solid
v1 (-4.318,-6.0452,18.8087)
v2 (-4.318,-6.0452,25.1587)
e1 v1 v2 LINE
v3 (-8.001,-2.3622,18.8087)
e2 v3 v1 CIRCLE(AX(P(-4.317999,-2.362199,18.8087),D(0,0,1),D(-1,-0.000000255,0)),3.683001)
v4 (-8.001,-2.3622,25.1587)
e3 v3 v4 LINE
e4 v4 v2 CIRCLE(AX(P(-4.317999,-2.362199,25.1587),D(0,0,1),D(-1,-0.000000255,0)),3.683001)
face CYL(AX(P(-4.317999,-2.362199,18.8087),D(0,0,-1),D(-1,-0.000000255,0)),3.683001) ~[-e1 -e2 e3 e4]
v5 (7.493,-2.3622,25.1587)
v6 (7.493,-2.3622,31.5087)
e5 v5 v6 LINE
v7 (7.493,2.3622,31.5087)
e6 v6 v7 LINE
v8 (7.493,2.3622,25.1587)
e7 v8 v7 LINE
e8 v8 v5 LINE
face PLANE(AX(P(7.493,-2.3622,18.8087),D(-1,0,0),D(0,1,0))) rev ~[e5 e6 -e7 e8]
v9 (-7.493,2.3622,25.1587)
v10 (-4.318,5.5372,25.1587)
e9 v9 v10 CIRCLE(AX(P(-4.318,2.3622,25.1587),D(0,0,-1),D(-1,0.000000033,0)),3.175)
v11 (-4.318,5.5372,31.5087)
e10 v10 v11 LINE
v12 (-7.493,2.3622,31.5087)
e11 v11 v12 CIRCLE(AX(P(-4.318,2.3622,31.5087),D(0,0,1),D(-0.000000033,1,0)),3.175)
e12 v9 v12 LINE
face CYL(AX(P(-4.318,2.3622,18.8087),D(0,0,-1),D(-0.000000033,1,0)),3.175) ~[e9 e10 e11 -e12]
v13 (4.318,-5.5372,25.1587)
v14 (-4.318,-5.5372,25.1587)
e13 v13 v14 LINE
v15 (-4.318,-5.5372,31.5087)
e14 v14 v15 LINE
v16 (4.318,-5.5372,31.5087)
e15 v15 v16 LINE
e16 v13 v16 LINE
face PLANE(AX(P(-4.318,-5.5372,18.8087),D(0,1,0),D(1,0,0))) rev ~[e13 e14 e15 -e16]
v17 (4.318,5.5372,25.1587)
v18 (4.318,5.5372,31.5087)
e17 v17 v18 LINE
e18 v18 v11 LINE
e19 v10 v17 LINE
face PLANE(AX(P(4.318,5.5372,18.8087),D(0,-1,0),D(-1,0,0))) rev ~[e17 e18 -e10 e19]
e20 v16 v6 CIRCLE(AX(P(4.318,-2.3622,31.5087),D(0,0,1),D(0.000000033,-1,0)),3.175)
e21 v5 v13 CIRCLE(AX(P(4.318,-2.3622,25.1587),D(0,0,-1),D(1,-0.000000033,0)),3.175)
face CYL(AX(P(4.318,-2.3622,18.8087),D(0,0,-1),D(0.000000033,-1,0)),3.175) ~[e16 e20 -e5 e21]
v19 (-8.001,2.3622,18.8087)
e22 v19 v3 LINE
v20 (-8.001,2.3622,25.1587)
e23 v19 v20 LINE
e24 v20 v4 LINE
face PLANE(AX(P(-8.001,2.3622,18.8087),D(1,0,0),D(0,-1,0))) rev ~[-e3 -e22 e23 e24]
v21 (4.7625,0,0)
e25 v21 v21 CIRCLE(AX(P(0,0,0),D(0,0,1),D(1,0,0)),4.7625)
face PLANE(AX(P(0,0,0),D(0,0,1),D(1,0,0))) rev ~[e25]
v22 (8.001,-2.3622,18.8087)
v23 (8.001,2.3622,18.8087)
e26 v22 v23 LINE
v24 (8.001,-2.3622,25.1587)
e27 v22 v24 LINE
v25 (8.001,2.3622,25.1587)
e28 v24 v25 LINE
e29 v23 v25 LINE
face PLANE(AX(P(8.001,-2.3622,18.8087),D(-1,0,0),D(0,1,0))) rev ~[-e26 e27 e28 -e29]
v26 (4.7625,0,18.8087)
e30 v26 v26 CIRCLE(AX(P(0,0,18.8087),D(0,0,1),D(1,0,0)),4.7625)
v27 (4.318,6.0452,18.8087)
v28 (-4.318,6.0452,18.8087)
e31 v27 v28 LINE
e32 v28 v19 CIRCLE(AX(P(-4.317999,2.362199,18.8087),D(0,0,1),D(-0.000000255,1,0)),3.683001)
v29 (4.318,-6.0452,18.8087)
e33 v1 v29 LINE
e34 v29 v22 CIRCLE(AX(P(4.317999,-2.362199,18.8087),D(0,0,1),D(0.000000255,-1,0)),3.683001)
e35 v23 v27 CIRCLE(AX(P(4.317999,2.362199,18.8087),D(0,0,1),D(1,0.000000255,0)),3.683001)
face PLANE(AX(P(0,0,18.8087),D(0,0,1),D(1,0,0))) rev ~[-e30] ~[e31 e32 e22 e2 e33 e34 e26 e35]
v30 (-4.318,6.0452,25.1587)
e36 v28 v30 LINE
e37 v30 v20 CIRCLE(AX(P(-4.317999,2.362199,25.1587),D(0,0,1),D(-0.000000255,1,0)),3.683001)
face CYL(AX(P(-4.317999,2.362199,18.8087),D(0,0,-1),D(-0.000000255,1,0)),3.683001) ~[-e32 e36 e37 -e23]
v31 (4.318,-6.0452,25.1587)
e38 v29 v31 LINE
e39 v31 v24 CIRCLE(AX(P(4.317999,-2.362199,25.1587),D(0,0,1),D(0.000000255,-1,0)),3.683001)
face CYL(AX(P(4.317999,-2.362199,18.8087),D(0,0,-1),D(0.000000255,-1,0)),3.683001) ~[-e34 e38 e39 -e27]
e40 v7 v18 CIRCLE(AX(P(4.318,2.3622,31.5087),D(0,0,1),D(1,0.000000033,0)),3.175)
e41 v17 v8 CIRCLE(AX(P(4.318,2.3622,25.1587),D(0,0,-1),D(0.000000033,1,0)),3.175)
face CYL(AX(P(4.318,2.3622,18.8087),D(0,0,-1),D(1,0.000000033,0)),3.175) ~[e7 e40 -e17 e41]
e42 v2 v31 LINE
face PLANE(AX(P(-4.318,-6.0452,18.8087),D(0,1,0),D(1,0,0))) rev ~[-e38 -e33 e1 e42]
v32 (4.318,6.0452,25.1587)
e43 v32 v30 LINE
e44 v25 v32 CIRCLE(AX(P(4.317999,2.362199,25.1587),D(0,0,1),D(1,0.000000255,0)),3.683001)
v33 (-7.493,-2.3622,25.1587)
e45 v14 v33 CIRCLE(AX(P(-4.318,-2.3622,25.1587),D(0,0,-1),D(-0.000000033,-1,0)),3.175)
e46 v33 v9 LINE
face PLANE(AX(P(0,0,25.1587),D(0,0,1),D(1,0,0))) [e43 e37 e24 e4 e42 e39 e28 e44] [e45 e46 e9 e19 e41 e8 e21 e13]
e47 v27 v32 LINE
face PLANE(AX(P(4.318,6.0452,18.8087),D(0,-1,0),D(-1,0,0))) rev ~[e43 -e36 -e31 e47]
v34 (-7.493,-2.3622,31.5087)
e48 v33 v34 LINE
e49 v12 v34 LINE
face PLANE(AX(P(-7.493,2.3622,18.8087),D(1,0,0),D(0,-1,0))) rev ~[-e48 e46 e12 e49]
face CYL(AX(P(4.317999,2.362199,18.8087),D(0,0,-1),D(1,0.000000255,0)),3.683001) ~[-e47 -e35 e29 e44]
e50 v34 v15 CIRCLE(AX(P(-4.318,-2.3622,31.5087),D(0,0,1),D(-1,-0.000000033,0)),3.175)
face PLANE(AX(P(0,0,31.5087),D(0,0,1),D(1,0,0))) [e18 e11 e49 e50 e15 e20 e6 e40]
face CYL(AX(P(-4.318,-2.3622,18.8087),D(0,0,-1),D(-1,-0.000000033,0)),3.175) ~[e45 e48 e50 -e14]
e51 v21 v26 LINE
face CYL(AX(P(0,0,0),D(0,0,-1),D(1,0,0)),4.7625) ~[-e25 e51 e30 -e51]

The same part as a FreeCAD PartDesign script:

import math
import FreeCAD as App
import Part
import Sketcher

V = App.Vector
Q = App.Units.Quantity

doc = App.newDocument("Part")
params = doc.addObject("Spreadsheet::Sheet", "Params")
for row, (alias, value) in enumerate([
    ("sketch1_diameter", "0.375 in"),
    ("pad1_length", "0.7405 in"),
    ("sketch2_radius", "0.125 in"),
    ("sketch2_width", "0.34 in"),
    ("sketch2_height", "0.186 in"),
    ("pad2_length", "0.5 in"),
    ("sketch3_radius", "0.145 in"),
    ("sketch3_radius2", "0.125 in"),
    ("sketch3_width", "0.34 in"),
    ("sketch3_height", "0.186 in"),
    ("pad3_length", "0.25 in"),
], start=1):
    params.set(f"A{row}", alias)
    params.set(f"B{row}", "=" + value)
    params.setAlias(f"B{row}", alias)

body = doc.addObject("PartDesign::Body", "Body")

sketch1 = body.newObject("Sketcher::SketchObject", "Sketch")
sketch1.AttachmentSupport = (doc.getObject("XY_Plane"), [""])
sketch1.MapMode = "FlatFace"
sketch1.addGeometry(Part.Circle(V(0, 0, 0), V(0, 0, 1), 4.8), False)
sketch1.addConstraint([
    Sketcher.Constraint("Coincident", 0, 3, -1, 1),
    Sketcher.Constraint("Diameter", 0, Q("0.375 in")),
])
sketch1.setExpression("Constraints[1]", "Params.sketch1_diameter")
pad1 = body.newObject("PartDesign::Pad", "Pad")
pad1.Profile = sketch1
pad1.setExpression("Length", "Params.pad1_length")

sketch2 = body.newObject("Sketcher::SketchObject", "Sketch001")
sketch2.AttachmentSupport = (doc.getObject("XY_Plane"), [""])
sketch2.MapMode = "FlatFace"
sketch2.AttachmentOffset = App.Placement(V(0, 0, 0.7405 * 25.4), App.Rotation())
sketch2.addGeometry([
    Part.ArcOfCircle(Part.Circle(V(4.3, 2.4, 0), V(0, 0, 1), 3.2), math.radians(0), math.radians(90)),
    Part.LineSegment(V(4.3, 5.5, 0), V(-4.3, 5.5, 0)),
    Part.ArcOfCircle(Part.Circle(V(-4.3, 2.4, 0), V(0, 0, 1), 3.2), math.radians(90), math.radians(180)),
    Part.LineSegment(V(-7.5, 2.4, 0), V(-7.5, -2.4, 0)),
    Part.ArcOfCircle(Part.Circle(V(-4.3, -2.4, 0), V(0, 0, 1), 3.2), math.radians(-180), math.radians(-90)),
    Part.LineSegment(V(-4.3, -5.5, 0), V(4.3, -5.5, 0)),
    Part.ArcOfCircle(Part.Circle(V(4.3, -2.4, 0), V(0, 0, 1), 3.2), math.radians(-90), math.radians(0)),
    Part.LineSegment(V(7.5, -2.4, 0), V(7.5, 2.4, 0)),
], False)
sketch2.addConstraint([
    Sketcher.Constraint("Tangent", 0, 2, 1, 1),
    Sketcher.Constraint("Tangent", 1, 2, 2, 1),
    Sketcher.Constraint("Tangent", 2, 2, 3, 1),
    Sketcher.Constraint("Tangent", 3, 2, 4, 1),
    Sketcher.Constraint("Tangent", 4, 2, 5, 1),
    Sketcher.Constraint("Tangent", 5, 2, 6, 1),
    Sketcher.Constraint("Tangent", 6, 2, 7, 1),
    Sketcher.Constraint("Tangent", 7, 2, 0, 1),
    Sketcher.Constraint("Horizontal", 1),
    Sketcher.Constraint("Vertical", 3),
    Sketcher.Constraint("Horizontal", 5),
    Sketcher.Constraint("Vertical", 7),
    Sketcher.Constraint("Equal", 0, 2),
    Sketcher.Constraint("Equal", 2, 4),
    Sketcher.Constraint("Equal", 4, 6),
    Sketcher.Constraint("Symmetric", 0, 3, 4, 3, -1, 1),
    Sketcher.Constraint("Radius", 0, Q("0.125 in")),
    Sketcher.Constraint("DistanceX", 1, 2, 1, 1, Q("0.34 in")),
    Sketcher.Constraint("DistanceY", 3, 2, 3, 1, Q("0.186 in")),
])
sketch2.setExpression("Constraints[16]", "Params.sketch2_radius")
sketch2.setExpression("Constraints[17]", "Params.sketch2_width")
sketch2.setExpression("Constraints[18]", "Params.sketch2_height")
pad2 = body.newObject("PartDesign::Pad", "Pad001")
pad2.Profile = sketch2
pad2.setExpression("Length", "Params.pad2_length")

sketch3 = body.newObject("Sketcher::SketchObject", "Sketch002")
sketch3.AttachmentSupport = (doc.getObject("XY_Plane"), [""])
sketch3.MapMode = "FlatFace"
sketch3.AttachmentOffset = App.Placement(V(0, 0, 0.7405 * 25.4), App.Rotation())
sketch3.addGeometry([
    Part.LineSegment(V(8, -2.4, 0), V(8, 2.4, 0)),
    Part.ArcOfCircle(Part.Circle(V(4.3, 2.4, 0), V(0, 0, 1), 3.7), math.radians(0), math.radians(90)),
    Part.LineSegment(V(4.3, 6, 0), V(-4.3, 6, 0)),
    Part.ArcOfCircle(Part.Circle(V(-4.3, 2.4, 0), V(0, 0, 1), 3.7), math.radians(90), math.radians(180)),
    Part.LineSegment(V(-8, 2.4, 0), V(-8, -2.4, 0)),
    Part.ArcOfCircle(Part.Circle(V(-4.3, -2.4, 0), V(0, 0, 1), 3.7), math.radians(-180), math.radians(-90)),
    Part.LineSegment(V(-4.3, -6, 0), V(4.3, -6, 0)),
    Part.ArcOfCircle(Part.Circle(V(4.3, -2.4, 0), V(0, 0, 1), 3.7), math.radians(-90), math.radians(0)),
    Part.ArcOfCircle(Part.Circle(V(-4.3, 2.4, 0), V(0, 0, 1), 3.2), math.radians(90), math.radians(180)),
    Part.LineSegment(V(-4.3, 5.5, 0), V(4.3, 5.5, 0)),
    Part.ArcOfCircle(Part.Circle(V(4.3, 2.4, 0), V(0, 0, 1), 3.2), math.radians(0), math.radians(90)),
    Part.LineSegment(V(7.5, 2.4, 0), V(7.5, -2.4, 0)),
    Part.ArcOfCircle(Part.Circle(V(4.3, -2.4, 0), V(0, 0, 1), 3.2), math.radians(-90), math.radians(0)),
    Part.LineSegment(V(4.3, -5.5, 0), V(-4.3, -5.5, 0)),
    Part.ArcOfCircle(Part.Circle(V(-4.3, -2.4, 0), V(0, 0, 1), 3.2), math.radians(-180), math.radians(-90)),
    Part.LineSegment(V(-7.5, -2.4, 0), V(-7.5, 2.4, 0)),
], False)
sketch3.addConstraint([
    Sketcher.Constraint("Tangent", 0, 2, 1, 1),
    Sketcher.Constraint("Tangent", 1, 2, 2, 1),
    Sketcher.Constraint("Tangent", 2, 2, 3, 1),
    Sketcher.Constraint("Tangent", 3, 2, 4, 1),
    Sketcher.Constraint("Tangent", 4, 2, 5, 1),
    Sketcher.Constraint("Tangent", 5, 2, 6, 1),
    Sketcher.Constraint("Tangent", 6, 2, 7, 1),
    Sketcher.Constraint("Tangent", 7, 2, 0, 1),
    Sketcher.Constraint("Tangent", 8, 1, 9, 1),
    Sketcher.Constraint("Tangent", 9, 2, 10, 2),
    Sketcher.Constraint("Tangent", 10, 1, 11, 1),
    Sketcher.Constraint("Tangent", 11, 2, 12, 2),
    Sketcher.Constraint("Tangent", 12, 1, 13, 1),
    Sketcher.Constraint("Tangent", 13, 2, 14, 2),
    Sketcher.Constraint("Tangent", 14, 1, 15, 1),
    Sketcher.Constraint("Tangent", 15, 2, 8, 2),
    Sketcher.Constraint("Vertical", 0),
    Sketcher.Constraint("Horizontal", 2),
    Sketcher.Constraint("Vertical", 4),
    Sketcher.Constraint("Horizontal", 6),
    Sketcher.Constraint("Horizontal", 9),
    Sketcher.Constraint("Vertical", 11),
    Sketcher.Constraint("Horizontal", 13),
    Sketcher.Constraint("Vertical", 15),
    Sketcher.Constraint("Coincident", 8, 3, 3, 3),
    Sketcher.Constraint("Coincident", 10, 3, 1, 3),
    Sketcher.Constraint("Coincident", 12, 3, 7, 3),
    Sketcher.Constraint("Equal", 1, 3),
    Sketcher.Constraint("Equal", 3, 5),
    Sketcher.Constraint("Equal", 5, 7),
    Sketcher.Constraint("Equal", 12, 14),
    Sketcher.Constraint("Symmetric", 1, 3, 5, 3, -1, 1),
    Sketcher.Constraint("Radius", 1, Q("0.145 in")),
    Sketcher.Constraint("Radius", 8, Q("0.125 in")),
    Sketcher.Constraint("DistanceX", 2, 2, 2, 1, Q("0.34 in")),
    Sketcher.Constraint("DistanceY", 0, 1, 0, 2, Q("0.186 in")),
])
sketch3.setExpression("Constraints[32]", "Params.sketch3_radius")
sketch3.setExpression("Constraints[33]", "Params.sketch3_radius2")
sketch3.setExpression("Constraints[34]", "Params.sketch3_width")
sketch3.setExpression("Constraints[35]", "Params.sketch3_height")
pad3 = body.newObject("PartDesign::Pad", "Pad002")
pad3.Profile = sketch3
pad3.setExpression("Length", "Params.pad3_length")

doc.recompute()
